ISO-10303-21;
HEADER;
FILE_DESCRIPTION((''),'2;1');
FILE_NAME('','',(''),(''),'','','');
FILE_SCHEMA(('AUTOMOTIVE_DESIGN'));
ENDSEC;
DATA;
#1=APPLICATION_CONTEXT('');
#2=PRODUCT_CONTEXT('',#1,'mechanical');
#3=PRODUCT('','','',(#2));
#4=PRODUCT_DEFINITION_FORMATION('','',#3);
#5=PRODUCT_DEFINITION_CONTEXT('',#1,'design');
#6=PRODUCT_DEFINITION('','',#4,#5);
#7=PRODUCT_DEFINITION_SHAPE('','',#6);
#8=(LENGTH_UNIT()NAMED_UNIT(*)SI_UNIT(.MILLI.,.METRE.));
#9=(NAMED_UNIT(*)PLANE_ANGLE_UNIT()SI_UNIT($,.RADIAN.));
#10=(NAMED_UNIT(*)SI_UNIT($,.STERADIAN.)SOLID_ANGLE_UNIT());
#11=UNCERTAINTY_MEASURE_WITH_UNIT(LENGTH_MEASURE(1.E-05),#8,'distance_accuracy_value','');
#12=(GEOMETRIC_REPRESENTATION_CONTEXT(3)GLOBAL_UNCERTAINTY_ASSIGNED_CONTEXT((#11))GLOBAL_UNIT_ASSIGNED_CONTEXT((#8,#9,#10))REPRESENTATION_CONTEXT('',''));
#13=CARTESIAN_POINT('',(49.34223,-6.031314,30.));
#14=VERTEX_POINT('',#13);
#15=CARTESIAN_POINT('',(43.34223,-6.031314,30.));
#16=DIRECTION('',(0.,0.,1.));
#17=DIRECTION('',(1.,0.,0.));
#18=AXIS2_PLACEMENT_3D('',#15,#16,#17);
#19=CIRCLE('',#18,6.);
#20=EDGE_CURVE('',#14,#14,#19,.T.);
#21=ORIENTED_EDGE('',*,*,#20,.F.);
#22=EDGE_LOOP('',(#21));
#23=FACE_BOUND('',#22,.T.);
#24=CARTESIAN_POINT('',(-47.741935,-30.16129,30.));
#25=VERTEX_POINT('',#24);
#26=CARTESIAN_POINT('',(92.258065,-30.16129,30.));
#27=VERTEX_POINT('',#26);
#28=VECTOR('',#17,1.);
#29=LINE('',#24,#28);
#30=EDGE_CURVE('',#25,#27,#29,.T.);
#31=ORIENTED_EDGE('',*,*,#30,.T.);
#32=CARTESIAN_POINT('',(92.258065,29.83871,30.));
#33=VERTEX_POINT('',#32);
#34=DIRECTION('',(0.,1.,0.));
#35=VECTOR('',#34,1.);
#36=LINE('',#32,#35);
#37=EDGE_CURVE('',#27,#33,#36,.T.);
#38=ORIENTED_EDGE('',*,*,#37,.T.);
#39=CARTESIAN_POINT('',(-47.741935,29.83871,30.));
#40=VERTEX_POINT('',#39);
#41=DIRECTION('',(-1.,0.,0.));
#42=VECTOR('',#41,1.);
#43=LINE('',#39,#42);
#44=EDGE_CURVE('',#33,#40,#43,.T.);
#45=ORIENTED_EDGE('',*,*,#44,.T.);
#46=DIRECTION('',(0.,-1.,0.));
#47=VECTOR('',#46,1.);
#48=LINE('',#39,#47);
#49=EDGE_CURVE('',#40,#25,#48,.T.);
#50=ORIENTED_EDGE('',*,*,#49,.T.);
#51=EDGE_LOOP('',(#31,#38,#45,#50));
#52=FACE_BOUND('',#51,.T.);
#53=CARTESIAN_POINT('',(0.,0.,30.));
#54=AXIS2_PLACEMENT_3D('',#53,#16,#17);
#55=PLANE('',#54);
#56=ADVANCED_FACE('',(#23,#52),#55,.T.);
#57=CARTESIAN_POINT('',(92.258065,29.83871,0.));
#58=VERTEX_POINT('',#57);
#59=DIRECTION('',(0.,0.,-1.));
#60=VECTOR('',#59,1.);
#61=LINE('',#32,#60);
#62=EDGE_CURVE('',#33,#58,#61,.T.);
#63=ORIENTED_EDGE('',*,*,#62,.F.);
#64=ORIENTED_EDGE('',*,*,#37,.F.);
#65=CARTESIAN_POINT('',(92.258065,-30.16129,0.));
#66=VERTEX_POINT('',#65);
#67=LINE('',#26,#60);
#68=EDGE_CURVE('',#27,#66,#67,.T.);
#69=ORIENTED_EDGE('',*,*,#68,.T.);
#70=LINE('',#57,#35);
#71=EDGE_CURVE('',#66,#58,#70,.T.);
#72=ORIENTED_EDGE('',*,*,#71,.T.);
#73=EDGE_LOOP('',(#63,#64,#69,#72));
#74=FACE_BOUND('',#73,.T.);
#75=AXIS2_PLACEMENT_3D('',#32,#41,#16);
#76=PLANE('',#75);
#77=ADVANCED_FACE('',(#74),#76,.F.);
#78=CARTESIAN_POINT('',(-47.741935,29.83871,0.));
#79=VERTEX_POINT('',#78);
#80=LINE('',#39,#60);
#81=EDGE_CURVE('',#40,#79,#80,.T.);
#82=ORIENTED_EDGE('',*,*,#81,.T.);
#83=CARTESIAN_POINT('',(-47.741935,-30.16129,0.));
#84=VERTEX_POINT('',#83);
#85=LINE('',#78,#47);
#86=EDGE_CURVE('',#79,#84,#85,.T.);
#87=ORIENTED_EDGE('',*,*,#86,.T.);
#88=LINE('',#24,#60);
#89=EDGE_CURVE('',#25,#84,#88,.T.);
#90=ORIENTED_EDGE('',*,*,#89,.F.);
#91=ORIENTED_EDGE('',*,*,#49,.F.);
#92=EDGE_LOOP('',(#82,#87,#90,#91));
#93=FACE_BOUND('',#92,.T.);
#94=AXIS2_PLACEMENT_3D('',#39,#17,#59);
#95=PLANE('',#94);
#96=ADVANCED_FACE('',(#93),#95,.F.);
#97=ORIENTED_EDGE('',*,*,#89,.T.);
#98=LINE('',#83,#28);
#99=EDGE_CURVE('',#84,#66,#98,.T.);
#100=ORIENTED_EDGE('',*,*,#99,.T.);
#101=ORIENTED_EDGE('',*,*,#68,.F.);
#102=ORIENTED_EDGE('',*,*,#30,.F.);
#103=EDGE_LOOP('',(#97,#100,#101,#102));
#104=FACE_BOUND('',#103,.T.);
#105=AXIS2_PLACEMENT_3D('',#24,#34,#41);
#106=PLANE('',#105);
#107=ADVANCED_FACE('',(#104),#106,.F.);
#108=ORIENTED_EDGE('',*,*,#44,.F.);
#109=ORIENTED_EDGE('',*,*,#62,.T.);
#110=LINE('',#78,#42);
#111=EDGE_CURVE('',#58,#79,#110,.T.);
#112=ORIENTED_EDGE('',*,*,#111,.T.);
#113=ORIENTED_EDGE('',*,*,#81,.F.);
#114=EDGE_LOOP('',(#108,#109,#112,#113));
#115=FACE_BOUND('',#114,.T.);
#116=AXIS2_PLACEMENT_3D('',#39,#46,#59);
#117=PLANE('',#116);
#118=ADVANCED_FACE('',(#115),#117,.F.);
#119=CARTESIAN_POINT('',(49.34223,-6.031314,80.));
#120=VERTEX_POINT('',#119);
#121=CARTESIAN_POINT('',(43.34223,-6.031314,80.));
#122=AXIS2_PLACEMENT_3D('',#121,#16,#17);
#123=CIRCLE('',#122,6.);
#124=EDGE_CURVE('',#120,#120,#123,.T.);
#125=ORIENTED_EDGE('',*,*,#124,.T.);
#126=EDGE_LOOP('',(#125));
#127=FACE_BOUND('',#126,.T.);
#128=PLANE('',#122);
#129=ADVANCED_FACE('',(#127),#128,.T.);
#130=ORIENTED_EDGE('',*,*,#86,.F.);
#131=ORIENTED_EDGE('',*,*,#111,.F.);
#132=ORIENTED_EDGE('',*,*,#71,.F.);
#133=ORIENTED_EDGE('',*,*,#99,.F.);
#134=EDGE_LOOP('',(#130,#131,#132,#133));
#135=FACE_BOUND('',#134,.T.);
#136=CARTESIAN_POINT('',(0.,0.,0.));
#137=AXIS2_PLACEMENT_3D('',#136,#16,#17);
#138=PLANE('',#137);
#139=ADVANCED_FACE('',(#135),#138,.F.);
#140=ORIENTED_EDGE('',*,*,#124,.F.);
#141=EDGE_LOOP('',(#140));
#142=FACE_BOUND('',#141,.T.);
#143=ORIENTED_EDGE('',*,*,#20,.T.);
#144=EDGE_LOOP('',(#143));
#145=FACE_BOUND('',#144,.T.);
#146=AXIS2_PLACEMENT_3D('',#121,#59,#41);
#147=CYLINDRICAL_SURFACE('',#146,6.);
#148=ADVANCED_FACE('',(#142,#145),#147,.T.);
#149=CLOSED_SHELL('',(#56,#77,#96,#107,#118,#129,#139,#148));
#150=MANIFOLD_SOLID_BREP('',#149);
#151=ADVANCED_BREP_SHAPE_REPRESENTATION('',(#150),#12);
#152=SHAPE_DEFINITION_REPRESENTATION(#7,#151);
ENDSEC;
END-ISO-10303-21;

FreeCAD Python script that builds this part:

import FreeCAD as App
import Part
import Sketcher
from FreeCAD import Vector
Q = App.Units.Quantity


def add_polygon(sketch, points):
    """Adds a closed chain of lines whose ends are joined by coincident constraints."""
    first, n = sketch.GeometryCount, len(points)
    for a, b in zip(points, points[1:] + points[:1]):
        sketch.addGeometry(Part.LineSegment(App.Vector(*a, 0), App.Vector(*b, 0)), False)
    for i in range(n):
        sketch.addConstraint(Sketcher.Constraint("Coincident", first + i, 2, first + (i + 1) % n, 1))

doc = App.newDocument("Part")
body = doc.addObject("PartDesign::Body", "Body")

# Sketch on XY plane
sketch1 = doc.addObject("Sketcher::SketchObject", "Sketch")
body.addObject(sketch1)
sketch1.AttachmentSupport = (doc.XY_Plane, [""])
sketch1.MapMode = "FlatFace"
add_polygon(sketch1, [(-47.741935, 29.83871), (-47.741935, -30.16129), (92.258065, -30.16129), (92.258065, 29.83871)])  # lines 0-3
sketch1.addConstraint(Sketcher.Constraint("Vertical", 0))
sketch1.addConstraint(Sketcher.Constraint("Horizontal", 1))
sketch1.addConstraint(Sketcher.Constraint("Vertical", 2))
sketch1.addConstraint(Sketcher.Constraint("Horizontal", 3))
sketch1.addConstraint(Sketcher.Constraint("DistanceX", 1, 1, 1, 2, Q("140 mm")))
sketch1.addConstraint(Sketcher.Constraint("DistanceY", 0, 2, 0, 1, Q("60 mm")))
sketch1.addConstraint(Sketcher.Constraint("DistanceY", 0, 2, -1, 1, Q("30.16129 mm")))
sketch1.addConstraint(Sketcher.Constraint("DistanceX", 0, 2, -1, 1, Q("47.741935 mm")))
pad1 = doc.addObject("PartDesign::Pad", "Pad")
body.addObject(pad1)
pad1.Profile = sketch1
pad1.Length = 30

# Sketch on XY plane
sketch2 = doc.addObject("Sketcher::SketchObject", "Sketch001")
body.addObject(sketch2)
sketch2.AttachmentSupport = (doc.XY_Plane, [""])
sketch2.MapMode = "FlatFace"
sketch2.AttachmentOffset = App.Placement(Vector(0, 0, 30), App.Rotation())
sketch2.addGeometry(Part.Circle(Vector(43.34223, -6.031314, 0), Vector(0, 0, 1), 6), False)
sketch2.addConstraint(Sketcher.Constraint("Diameter", 0, Q("12 mm")))
sketch2.addConstraint(Sketcher.Constraint("DistanceX", -1, 1, 0, 3, Q("43.34223 mm")))
sketch2.addConstraint(Sketcher.Constraint("DistanceY", 0, 3, -1, 1, Q("6.031314 mm")))
pad2 = doc.addObject("PartDesign::Pad", "Pad001")
body.addObject(pad2)
pad2.Profile = sketch2
pad2.Length = 50

doc.recompute()
